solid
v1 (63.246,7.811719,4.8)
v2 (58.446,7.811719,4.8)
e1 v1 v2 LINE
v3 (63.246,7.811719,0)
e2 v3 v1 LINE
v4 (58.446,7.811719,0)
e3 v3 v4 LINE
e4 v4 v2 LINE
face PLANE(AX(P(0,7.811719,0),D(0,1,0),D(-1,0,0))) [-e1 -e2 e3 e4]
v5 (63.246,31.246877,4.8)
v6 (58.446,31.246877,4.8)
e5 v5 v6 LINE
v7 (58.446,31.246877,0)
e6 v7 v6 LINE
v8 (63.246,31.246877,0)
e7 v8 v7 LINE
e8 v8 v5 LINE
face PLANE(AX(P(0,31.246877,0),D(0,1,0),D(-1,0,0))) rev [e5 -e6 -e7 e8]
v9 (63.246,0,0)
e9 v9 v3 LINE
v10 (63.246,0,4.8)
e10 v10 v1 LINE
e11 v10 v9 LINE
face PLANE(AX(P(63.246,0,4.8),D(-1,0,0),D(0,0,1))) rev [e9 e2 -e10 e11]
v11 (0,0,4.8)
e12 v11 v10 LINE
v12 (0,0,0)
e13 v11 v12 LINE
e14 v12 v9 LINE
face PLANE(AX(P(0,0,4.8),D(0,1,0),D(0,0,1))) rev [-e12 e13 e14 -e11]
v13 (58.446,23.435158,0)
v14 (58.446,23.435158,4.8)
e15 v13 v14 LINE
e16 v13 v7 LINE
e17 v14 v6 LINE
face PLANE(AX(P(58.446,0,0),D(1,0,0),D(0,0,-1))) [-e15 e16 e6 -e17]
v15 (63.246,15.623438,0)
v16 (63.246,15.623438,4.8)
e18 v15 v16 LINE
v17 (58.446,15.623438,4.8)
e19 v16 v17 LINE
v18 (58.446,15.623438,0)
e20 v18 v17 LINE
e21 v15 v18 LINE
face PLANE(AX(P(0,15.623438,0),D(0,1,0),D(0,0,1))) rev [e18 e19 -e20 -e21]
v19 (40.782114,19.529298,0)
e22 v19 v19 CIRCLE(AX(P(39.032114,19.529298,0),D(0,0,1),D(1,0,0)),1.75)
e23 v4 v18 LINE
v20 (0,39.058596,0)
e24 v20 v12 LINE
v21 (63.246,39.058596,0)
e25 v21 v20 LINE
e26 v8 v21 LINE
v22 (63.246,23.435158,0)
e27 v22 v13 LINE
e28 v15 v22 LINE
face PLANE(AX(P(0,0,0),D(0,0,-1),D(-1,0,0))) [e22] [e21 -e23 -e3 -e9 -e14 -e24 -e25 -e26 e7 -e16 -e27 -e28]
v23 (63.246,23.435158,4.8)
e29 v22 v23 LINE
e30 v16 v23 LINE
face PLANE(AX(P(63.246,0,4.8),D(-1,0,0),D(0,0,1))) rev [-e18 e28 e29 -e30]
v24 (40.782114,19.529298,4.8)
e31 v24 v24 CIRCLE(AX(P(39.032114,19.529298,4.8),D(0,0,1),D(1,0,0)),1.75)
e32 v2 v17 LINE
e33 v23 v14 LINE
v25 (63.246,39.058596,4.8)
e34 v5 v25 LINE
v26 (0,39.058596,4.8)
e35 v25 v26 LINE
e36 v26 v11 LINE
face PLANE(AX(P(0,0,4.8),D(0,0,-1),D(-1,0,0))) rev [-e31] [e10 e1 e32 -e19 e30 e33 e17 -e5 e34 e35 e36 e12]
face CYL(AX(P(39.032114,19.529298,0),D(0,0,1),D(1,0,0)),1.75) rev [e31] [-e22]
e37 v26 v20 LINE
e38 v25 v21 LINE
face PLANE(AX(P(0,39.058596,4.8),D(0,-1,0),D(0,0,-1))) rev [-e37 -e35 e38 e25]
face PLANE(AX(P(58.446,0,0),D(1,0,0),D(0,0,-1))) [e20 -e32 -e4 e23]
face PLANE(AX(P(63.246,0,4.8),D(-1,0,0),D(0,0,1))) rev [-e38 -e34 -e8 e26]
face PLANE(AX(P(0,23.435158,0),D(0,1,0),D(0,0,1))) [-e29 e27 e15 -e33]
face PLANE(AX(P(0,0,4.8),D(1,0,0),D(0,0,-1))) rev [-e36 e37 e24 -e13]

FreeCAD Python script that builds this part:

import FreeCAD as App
import Part
import Sketcher
from FreeCAD import Vector
Q = App.Units.Quantity

doc = App.newDocument("Part")
body = doc.addObject("PartDesign::Body", "Body")

# Sketch on XY plane
sketch1 = body.newObject("Sketcher::SketchObject", "Sketch")
sketch1.AttachmentSupport = (doc.getObject("XY_Plane"), [""])
sketch1.MapMode = "FlatFace"
sketch1.addGeometry([
    Part.LineSegment(Vector(0, 39, 0), Vector(0, 0, 0)),
    Part.LineSegment(Vector(0, 0, 0), Vector(63, 0, 0)),
    Part.LineSegment(Vector(63, 0, 0), Vector(63, 39, 0)),
    Part.LineSegment(Vector(63, 39, 0), Vector(0, 39, 0)),
], False)
sketch1.addConstraint([
    Sketcher.Constraint("Coincident", 0, 2, 1, 1),
    Sketcher.Constraint("Coincident", 1, 2, 2, 1),
    Sketcher.Constraint("Coincident", 2, 2, 3, 1),
    Sketcher.Constraint("Coincident", 3, 2, 0, 1),
    Sketcher.Constraint("Vertical", 0),
    Sketcher.Constraint("Horizontal", 1),
    Sketcher.Constraint("Vertical", 2),
    Sketcher.Constraint("Horizontal", 3),
    Sketcher.Constraint("Coincident", 0, 2, -1, 1),
    Sketcher.Constraint("DistanceX", 1, 1, 1, 2, Q("63.246 mm")),
    Sketcher.Constraint("DistanceY", 0, 2, 0, 1, Q("39.058596 mm")),
])
pad1 = body.newObject("PartDesign::Pad", "Pad")
pad1.Profile = sketch1
pad1.Length = 4.8

# Sketch on XY plane
sketch2 = body.newObject("Sketcher::SketchObject", "Sketch001")
sketch2.AttachmentSupport = (doc.getObject("XY_Plane"), [""])
sketch2.MapMode = "FlatFace"
sketch2.AttachmentOffset = App.Placement(Vector(0, 0, 4.8), App.Rotation())
sketch2.addGeometry([
    Part.LineSegment(Vector(58.4, 15.6, 0), Vector(58.4, 7.8, 0)),  # 0
    Part.LineSegment(Vector(58.4, 7.8, 0), Vector(63.2, 7.8, 0)),  # 1
    Part.LineSegment(Vector(63.2, 7.8, 0), Vector(63.2, 15.6, 0)),  # 2
    Part.LineSegment(Vector(63.2, 15.6, 0), Vector(58.4, 15.6, 0)),  # 3
    Part.LineSegment(Vector(58.4, 31.2, 0), Vector(58.4, 23.4, 0)),  # 4
    Part.LineSegment(Vector(58.4, 23.4, 0), Vector(63.2, 23.4, 0)),  # 5
    Part.LineSegment(Vector(63.2, 23.4, 0), Vector(63.2, 31.2, 0)),  # 6
    Part.LineSegment(Vector(63.2, 31.2, 0), Vector(58.4, 31.2, 0)),  # 7
], False)
sketch2.addConstraint([
    Sketcher.Constraint("Coincident", 0, 2, 1, 1),
    Sketcher.Constraint("Coincident", 1, 2, 2, 1),
    Sketcher.Constraint("Coincident", 2, 2, 3, 1),
    Sketcher.Constraint("Coincident", 3, 2, 0, 1),
    Sketcher.Constraint("Coincident", 4, 2, 5, 1),
    Sketcher.Constraint("Coincident", 5, 2, 6, 1),
    Sketcher.Constraint("Coincident", 6, 2, 7, 1),
    Sketcher.Constraint("Coincident", 7, 2, 4, 1),
    Sketcher.Constraint("Vertical", 0),
    Sketcher.Constraint("Horizontal", 1),
    Sketcher.Constraint("Vertical", 2),
    Sketcher.Constraint("Horizontal", 3),
    Sketcher.Constraint("Vertical", 4),
    Sketcher.Constraint("Horizontal", 5),
    Sketcher.Constraint("Vertical", 6),
    Sketcher.Constraint("Horizontal", 7),
    Sketcher.Constraint("Vertical", 3, 2, 4, 2),
    Sketcher.Constraint("Vertical", 2, 2, 5, 2),
    Sketcher.Constraint("Equal", 2, 4),
    Sketcher.Constraint("DistanceX", 1, 1, 1, 2, Q("4.8 mm")),
    Sketcher.Constraint("DistanceX", -1, 1, 0, 2, Q("58.446 mm")),
    Sketcher.Constraint("DistanceY", 0, 2, 0, 1, Q("7.811719 mm")),
    Sketcher.Constraint("DistanceY", -1, 1, 0, 2, Q("7.811719 mm")),
    Sketcher.Constraint("DistanceY", 3, 2, 4, 2, Q("7.811719 mm")),
])
pocket1 = body.newObject("PartDesign::Pocket", "Pocket")
pocket1.Profile = sketch2
pocket1.Type = "ThroughAll"

# Sketch on XY plane
sketch3 = body.newObject("Sketcher::SketchObject", "Sketch002")
sketch3.AttachmentSupport = (doc.getObject("XY_Plane"), [""])
sketch3.MapMode = "FlatFace"
sketch3.AttachmentOffset = App.Placement(Vector(0, 0, 4.8), App.Rotation())
sketch3.addGeometry(Part.Circle(Vector(39, 19.5, 0), Vector(0, 0, 1), 1.8), False)
sketch3.addConstraint([
    Sketcher.Constraint("Diameter", 0, Q("3.5 mm")),
    Sketcher.Constraint("DistanceY", -1, 1, 0, 3, Q("19.529298 mm")),
    Sketcher.Constraint("DistanceX", -1, 1, 0, 3, Q("39.032114 mm")),
])
pocket2 = body.newObject("PartDesign::Pocket", "Pocket001")
pocket2.Profile = sketch3
pocket2.Type = "ThroughAll"

doc.recompute()
